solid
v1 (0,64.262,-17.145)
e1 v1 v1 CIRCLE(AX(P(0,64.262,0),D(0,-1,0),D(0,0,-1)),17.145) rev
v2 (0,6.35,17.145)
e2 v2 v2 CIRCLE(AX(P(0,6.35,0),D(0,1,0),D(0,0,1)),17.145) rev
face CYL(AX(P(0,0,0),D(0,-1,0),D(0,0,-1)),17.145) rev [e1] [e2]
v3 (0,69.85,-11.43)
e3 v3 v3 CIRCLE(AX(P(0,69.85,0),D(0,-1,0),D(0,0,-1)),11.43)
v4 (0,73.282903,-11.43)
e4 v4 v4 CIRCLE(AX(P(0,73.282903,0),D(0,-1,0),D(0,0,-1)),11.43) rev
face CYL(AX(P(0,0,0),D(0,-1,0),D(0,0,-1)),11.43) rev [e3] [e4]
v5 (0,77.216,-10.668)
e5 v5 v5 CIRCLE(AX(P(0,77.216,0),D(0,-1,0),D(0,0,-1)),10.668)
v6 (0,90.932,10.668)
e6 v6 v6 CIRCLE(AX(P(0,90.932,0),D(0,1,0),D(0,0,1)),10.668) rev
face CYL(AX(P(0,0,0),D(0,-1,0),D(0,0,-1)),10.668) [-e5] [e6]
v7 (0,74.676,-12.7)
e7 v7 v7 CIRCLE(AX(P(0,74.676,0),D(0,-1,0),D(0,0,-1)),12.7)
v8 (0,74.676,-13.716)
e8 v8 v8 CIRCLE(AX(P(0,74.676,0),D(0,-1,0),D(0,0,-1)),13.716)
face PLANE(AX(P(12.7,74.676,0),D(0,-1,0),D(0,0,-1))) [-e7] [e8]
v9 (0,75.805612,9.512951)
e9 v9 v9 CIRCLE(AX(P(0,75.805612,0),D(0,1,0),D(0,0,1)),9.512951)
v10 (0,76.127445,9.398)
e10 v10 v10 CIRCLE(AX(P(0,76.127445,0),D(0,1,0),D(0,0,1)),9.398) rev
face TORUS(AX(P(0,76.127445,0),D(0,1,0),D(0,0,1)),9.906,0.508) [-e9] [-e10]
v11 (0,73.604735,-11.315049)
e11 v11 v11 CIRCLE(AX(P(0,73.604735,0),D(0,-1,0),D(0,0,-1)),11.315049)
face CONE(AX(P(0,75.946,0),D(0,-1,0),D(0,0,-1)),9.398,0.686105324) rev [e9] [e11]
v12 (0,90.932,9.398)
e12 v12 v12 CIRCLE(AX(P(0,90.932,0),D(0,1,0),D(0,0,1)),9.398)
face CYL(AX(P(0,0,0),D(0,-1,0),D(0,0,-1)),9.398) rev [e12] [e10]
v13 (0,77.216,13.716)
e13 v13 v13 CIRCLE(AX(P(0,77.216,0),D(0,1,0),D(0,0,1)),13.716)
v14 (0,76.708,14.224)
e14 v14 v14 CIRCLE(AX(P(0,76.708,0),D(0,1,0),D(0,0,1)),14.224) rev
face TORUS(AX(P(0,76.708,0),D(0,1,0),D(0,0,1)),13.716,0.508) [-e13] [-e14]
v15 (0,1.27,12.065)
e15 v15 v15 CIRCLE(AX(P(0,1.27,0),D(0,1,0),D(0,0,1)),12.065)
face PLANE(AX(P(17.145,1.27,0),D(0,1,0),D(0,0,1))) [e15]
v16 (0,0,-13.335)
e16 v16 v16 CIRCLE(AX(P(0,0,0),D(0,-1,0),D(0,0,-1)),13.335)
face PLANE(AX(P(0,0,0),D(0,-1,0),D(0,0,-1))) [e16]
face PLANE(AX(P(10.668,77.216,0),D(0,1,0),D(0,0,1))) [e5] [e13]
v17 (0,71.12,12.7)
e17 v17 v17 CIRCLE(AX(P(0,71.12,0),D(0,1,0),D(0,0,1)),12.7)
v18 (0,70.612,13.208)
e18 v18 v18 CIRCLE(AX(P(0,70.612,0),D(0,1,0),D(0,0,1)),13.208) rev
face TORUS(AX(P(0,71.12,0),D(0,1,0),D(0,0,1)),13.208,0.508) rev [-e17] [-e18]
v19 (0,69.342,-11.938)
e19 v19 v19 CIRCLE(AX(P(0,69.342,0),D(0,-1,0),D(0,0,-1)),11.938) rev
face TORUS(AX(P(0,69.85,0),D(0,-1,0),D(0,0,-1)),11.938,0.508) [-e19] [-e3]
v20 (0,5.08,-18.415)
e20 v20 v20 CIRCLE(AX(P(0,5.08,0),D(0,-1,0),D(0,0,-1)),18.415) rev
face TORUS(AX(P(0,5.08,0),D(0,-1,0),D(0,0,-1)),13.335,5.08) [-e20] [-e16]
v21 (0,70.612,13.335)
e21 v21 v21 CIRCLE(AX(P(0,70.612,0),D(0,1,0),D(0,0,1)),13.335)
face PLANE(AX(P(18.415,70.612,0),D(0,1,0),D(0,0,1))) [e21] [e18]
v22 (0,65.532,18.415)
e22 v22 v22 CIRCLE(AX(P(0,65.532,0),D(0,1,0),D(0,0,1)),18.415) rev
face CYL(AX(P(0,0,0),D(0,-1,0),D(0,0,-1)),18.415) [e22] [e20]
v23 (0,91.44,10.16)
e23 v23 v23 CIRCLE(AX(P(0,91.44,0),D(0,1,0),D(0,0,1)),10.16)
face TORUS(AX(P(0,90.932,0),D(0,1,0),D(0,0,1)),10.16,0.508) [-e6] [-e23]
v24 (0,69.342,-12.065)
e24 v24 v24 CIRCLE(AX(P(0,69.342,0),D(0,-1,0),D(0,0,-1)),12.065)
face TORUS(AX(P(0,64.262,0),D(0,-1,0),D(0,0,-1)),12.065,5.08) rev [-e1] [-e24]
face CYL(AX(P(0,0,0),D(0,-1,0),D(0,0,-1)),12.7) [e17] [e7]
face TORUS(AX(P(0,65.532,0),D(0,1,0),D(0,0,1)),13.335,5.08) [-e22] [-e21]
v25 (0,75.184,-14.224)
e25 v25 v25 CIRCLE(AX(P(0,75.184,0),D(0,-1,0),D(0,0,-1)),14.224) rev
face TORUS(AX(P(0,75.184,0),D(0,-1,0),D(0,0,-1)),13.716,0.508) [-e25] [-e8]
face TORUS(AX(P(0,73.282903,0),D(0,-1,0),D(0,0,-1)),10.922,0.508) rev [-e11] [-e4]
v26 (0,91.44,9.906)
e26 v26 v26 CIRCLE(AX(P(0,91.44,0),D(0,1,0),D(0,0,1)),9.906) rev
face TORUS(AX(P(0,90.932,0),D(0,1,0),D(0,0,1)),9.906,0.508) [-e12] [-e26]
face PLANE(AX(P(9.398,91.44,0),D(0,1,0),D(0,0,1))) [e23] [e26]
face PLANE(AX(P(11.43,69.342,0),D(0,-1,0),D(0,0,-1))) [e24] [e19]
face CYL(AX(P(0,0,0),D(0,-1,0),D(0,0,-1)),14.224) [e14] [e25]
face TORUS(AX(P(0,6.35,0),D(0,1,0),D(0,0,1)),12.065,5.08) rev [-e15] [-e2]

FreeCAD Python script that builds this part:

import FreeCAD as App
import Part
import Sketcher
from FreeCAD import Vector
Q = App.Units.Quantity


def edges_at(feature, points):
    """Names of the edges that pass closest to the given points."""
    edges = feature.Shape.Edges
    near = lambda p: min(range(len(edges)), key=lambda i: edges[i].distToShape(Part.Vertex(*p))[0])
    return sorted({f"Edge{near(p) + 1}" for p in points})


def add_polygon(sketch, points):
    """Adds a closed chain of lines whose ends are joined by coincident constraints."""
    first, n = sketch.GeometryCount, len(points)
    for a, b in zip(points, points[1:] + points[:1]):
        sketch.addGeometry(Part.LineSegment(App.Vector(*a, 0), App.Vector(*b, 0)), False)
    for i in range(n):
        sketch.addConstraint(Sketcher.Constraint("Coincident", first + i, 2, first + (i + 1) % n, 1))

doc = App.newDocument("Part")
body = doc.addObject("PartDesign::Body", "Body")

# Sketch on XY plane
sketch1 = body.newObject("Sketcher::SketchObject", "Sketch")
sketch1.AttachmentSupport = (doc.getObject("XY_Plane"), [""])
sketch1.MapMode = "FlatFace"
add_polygon(sketch1, [(0, 0), (18.4, 0), (18.4, 70.6), (12.7, 70.6), (12.7, 74.7), (14.2, 74.7), (14.2, 77.2), (10.7, 77.2), (10.7, 91.4), (9.4, 91.4), (9.4, 75.9), (11.4, 73.5), (11.4, 69.3), (17.1, 69.3), (17.1, 1.3), (0, 1.3)])  # lines 0-15
sketch1.addConstraint(Sketcher.Constraint("Horizontal", 0))
sketch1.addConstraint(Sketcher.Constraint("Vertical", 1))
sketch1.addConstraint(Sketcher.Constraint("Horizontal", 2))
sketch1.addConstraint(Sketcher.Constraint("Vertical", 3))
sketch1.addConstraint(Sketcher.Constraint("Horizontal", 4))
sketch1.addConstraint(Sketcher.Constraint("Vertical", 5))
sketch1.addConstraint(Sketcher.Constraint("Horizontal", 6))
sketch1.addConstraint(Sketcher.Constraint("Vertical", 7))
sketch1.addConstraint(Sketcher.Constraint("Horizontal", 8))
sketch1.addConstraint(Sketcher.Constraint("Vertical", 9))
sketch1.addConstraint(Sketcher.Constraint("Vertical", 11))
sketch1.addConstraint(Sketcher.Constraint("Horizontal", 12))
sketch1.addConstraint(Sketcher.Constraint("Vertical", 13))
sketch1.addConstraint(Sketcher.Constraint("Horizontal", 14))
sketch1.addConstraint(Sketcher.Constraint("Vertical", 15))
sketch1.addConstraint(Sketcher.Constraint("Coincident", 15, 2, -1, 1))
sketch1.addConstraint(Sketcher.Constraint("Equal", 2, 12))
sketch1.addConstraint(Sketcher.Constraint("Equal", 8, 15))
sketch1.addConstraint(Sketcher.Constraint("DistanceY", 5, 1, 5, 2, Q("0.1 in")))
sketch1.addConstraint(Sketcher.Constraint("DistanceX", 4, 1, 4, 2, Q("0.06 in")))
sketch1.addConstraint(Sketcher.Constraint("DistanceX", 6, 2, 6, 1, Q("0.14 in")))
sketch1.addConstraint(Sketcher.Constraint("DistanceX", 8, 2, 8, 1, Q("0.05 in")))
sketch1.addConstraint(Sketcher.Constraint("DistanceY", 1, 1, 1, 2, Q("2.78 in")))
sketch1.addConstraint(Sketcher.Constraint("DistanceY", 3, 1, 3, 2, Q("0.16 in")))
sketch1.addConstraint(Sketcher.Constraint("DistanceY", 7, 1, 7, 2, Q("0.56 in")))
sketch1.addConstraint(Sketcher.Constraint("DistanceY", 9, 2, 9, 1, Q("0.61 in")))
sketch1.addConstraint(Sketcher.Constraint("DistanceY", 13, 2, 13, 1, Q("2.68 in")))
sketch1.addConstraint(Sketcher.Constraint("DistanceX", -1, 1, 2, 2, Q("0.5 in")))
sketch1.addConstraint(Sketcher.Constraint("DistanceX", 0, 1, 0, 2, Q("0.725 in")))
sketch1.addConstraint(Sketcher.Constraint("DistanceX", 14, 2, 14, 1, Q("0.675 in")))
sketch1.addConstraint(Sketcher.Constraint("DistanceY", 11, 2, 11, 1, 4.122348))
revolution = body.newObject("PartDesign::Revolution", "Revolution")
revolution.Profile = sketch1
revolution.ReferenceAxis = (sketch1, ["V_Axis"])
revolution.Angle = 360
doc.recompute()

fillet = body.newObject("PartDesign::Fillet", "Fillet")
fillet.Base = (revolution, edges_at(revolution, [
    (0, 1.27, 17.145),
    (0, 69.342, 17.145),
    (0, 70.612, 18.415),
    (0, 0, 18.415),
]))
fillet.Radius = Q("0.2 in")
doc.recompute()

fillet2 = body.newObject("PartDesign::Fillet", "Fillet001")
fillet2.Base = (fillet, edges_at(fillet, [
    (0, 69.342, 11.43),
    (0, 73.464, 11.43),
    (0, 75.946, 9.398),
    (0, 91.44, 9.398),
    (0, 91.44, 10.668),
    (0, 77.216, 14.224),
    (0, 74.676, 14.224),
    (0, 70.612, 12.7),
]))
fillet2.Radius = Q("0.02 in")

doc.recompute()
